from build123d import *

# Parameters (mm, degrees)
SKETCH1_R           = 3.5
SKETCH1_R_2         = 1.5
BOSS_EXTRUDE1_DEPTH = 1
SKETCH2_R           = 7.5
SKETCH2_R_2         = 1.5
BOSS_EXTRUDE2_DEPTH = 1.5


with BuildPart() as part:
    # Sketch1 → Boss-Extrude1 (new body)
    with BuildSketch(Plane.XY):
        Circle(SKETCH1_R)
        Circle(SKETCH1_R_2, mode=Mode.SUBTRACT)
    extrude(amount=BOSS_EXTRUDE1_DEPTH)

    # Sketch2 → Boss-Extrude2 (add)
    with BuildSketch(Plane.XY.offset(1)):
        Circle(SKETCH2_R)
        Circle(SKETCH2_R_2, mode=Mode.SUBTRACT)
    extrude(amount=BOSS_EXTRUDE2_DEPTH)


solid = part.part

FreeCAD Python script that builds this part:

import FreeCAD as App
import Part
import Sketcher

doc = App.newDocument("Part")
body = doc.addObject("PartDesign::Body", "Body")

# Sketch on XY plane
sketch1 = body.newObject("Sketcher::SketchObject", "Sketch")
sketch1.AttachmentSupport = (doc.getObject("XY_Plane"), [""])
sketch1.MapMode = "FlatFace"
sketch1.addGeometry(Part.Circle(App.Vector(0, 0, 0), App.Vector(0, 0, 1), 3.5), False)
sketch1.addGeometry(Part.Circle(App.Vector(0, 0, 0), App.Vector(0, 0, 1), 1.5), False)
sketch1.addConstraint(Sketcher.Constraint("Coincident", 0, 3, -1, 1))
sketch1.addConstraint(Sketcher.Constraint("Coincident", 1, 3, -1, 1))
sketch1.addConstraint(Sketcher.Constraint("Diameter", 0, 7.0))
sketch1.addConstraint(Sketcher.Constraint("Diameter", 1, 3.0))
pad1 = body.newObject("PartDesign::Pad", "Pad")
pad1.Profile = sketch1
pad1.Length = 1

# Sketch on XY plane
sketch2 = body.newObject("Sketcher::SketchObject", "Sketch001")
sketch2.AttachmentSupport = (doc.getObject("XY_Plane"), [""])
sketch2.MapMode = "FlatFace"
sketch2.AttachmentOffset = App.Placement(App.Vector(0, 0, 1), App.Rotation())
sketch2.addGeometry(Part.Circle(App.Vector(0, 0, 0), App.Vector(0, 0, 1), 7.5), False)
sketch2.addGeometry(Part.Circle(App.Vector(0, 0, 0), App.Vector(0, 0, 1), 1.5), False)
sketch2.addConstraint(Sketcher.Constraint("Coincident", 0, 3, -1, 1))
sketch2.addConstraint(Sketcher.Constraint("Coincident", 1, 3, -1, 1))
sketch2.addConstraint(Sketcher.Constraint("Diameter", 0, 15.0))
sketch2.addConstraint(Sketcher.Constraint("Diameter", 1, 3.0))
pad2 = body.newObject("PartDesign::Pad", "Pad001")
pad2.Profile = sketch2
pad2.Length = 1.5

doc.recompute()
